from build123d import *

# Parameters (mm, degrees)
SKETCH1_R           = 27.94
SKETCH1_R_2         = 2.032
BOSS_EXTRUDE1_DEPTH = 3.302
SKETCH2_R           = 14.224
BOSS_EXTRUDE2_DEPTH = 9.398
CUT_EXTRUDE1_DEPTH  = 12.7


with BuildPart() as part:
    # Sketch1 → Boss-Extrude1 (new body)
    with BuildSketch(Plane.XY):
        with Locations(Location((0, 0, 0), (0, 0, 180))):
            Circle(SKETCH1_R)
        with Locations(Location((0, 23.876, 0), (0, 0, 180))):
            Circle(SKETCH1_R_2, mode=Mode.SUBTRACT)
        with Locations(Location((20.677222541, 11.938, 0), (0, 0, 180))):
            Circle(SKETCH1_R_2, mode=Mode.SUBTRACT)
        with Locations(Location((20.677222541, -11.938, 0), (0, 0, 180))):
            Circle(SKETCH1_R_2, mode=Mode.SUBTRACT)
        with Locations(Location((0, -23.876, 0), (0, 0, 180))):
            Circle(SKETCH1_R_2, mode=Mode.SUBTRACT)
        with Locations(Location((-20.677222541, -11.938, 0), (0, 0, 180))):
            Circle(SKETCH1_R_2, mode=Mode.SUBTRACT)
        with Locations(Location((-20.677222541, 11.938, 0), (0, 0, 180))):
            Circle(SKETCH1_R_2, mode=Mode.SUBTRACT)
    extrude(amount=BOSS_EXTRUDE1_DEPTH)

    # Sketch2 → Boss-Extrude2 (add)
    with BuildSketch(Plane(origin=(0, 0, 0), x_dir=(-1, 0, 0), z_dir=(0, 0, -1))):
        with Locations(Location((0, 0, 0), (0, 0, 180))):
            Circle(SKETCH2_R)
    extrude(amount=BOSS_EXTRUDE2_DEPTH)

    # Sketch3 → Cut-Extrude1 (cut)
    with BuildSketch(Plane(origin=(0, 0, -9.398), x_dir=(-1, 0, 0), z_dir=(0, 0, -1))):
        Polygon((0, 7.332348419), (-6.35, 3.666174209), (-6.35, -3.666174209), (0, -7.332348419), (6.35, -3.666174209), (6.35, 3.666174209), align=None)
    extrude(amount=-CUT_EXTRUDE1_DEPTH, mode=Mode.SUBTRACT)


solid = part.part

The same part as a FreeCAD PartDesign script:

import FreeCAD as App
import Part
import Sketcher
from FreeCAD import Vector
Q = App.Units.Quantity

doc = App.newDocument("Part")
body = doc.addObject("PartDesign::Body", "Body")

# Sketch on XY plane
sketch1 = body.newObject("Sketcher::SketchObject", "Sketch")
sketch1.AttachmentSupport = (doc.getObject("XY_Plane"), [""])
sketch1.MapMode = "FlatFace"
sketch1.addGeometry([
    Part.Circle(Vector(0, 0, 0), Vector(0, 0, 1), 27.9),  # 0
    Part.Circle(Vector(20.7, 11.9, 0), Vector(0, 0, 1), 2),  # 1
    Part.Circle(Vector(0, 23.9, 0), Vector(0, 0, 1), 2),  # 2
    Part.Circle(Vector(-20.7, 11.9, 0), Vector(0, 0, 1), 2),  # 3
    Part.Circle(Vector(20.7, -11.9, 0), Vector(0, 0, 1), 2),  # 4
    Part.Circle(Vector(0, -23.9, 0), Vector(0, 0, 1), 2),  # 5
    Part.Circle(Vector(-20.7, -11.9, 0), Vector(0, 0, 1), 2),  # 6
], False)
sketch1.addConstraint([
    Sketcher.Constraint("Coincident", 0, 3, -1, 1),
    Sketcher.Constraint("Equal", 1, 2),
    Sketcher.Constraint("Equal", 2, 3),
    Sketcher.Constraint("Equal", 3, 4),
    Sketcher.Constraint("Equal", 4, 5),
    Sketcher.Constraint("Equal", 5, 6),
    Sketcher.Constraint("Symmetric", 3, 3, 4, 3, -1, 1),
    Sketcher.Constraint("Symmetric", 2, 3, 5, 3, -1, 1),
    Sketcher.Constraint("Symmetric", 1, 3, 6, 3, -1, 1),
    Sketcher.Constraint("Symmetric", 1, 3, 3, 3, -2),
    Sketcher.Constraint("PointOnObject", 2, 3, -2),
    Sketcher.Constraint("Diameter", 0, Q("2.2 in")),
    Sketcher.Constraint("Diameter", 1, Q("0.16 in")),
    Sketcher.Constraint("DistanceY", -1, 1, 1, 3, Q("0.47 in")),
    Sketcher.Constraint("DistanceY", -1, 1, 2, 3, Q("0.94 in")),
    Sketcher.Constraint("DistanceX", -1, 1, 1, 3, Q("20.677223 mm")),
])
pad1 = body.newObject("PartDesign::Pad", "Pad")
pad1.Profile = sketch1
pad1.Length = Q("0.13 in")

# Sketch on XY plane
sketch2 = body.newObject("Sketcher::SketchObject", "Sketch001")
sketch2.AttachmentSupport = (doc.getObject("XY_Plane"), [""])
sketch2.MapMode = "FlatFace"
sketch2.addGeometry(Part.Circle(Vector(0, 0, 0), Vector(0, 0, 1), 14), False)
sketch2.addConstraint([
    Sketcher.Constraint("Coincident", 0, 3, -1, 1),
    Sketcher.Constraint("Diameter", 0, Q("1.12 in")),
])
pad2 = body.newObject("PartDesign::Pad", "Pad001")
pad2.Profile = sketch2
pad2.Length = Q("0.37 in")
pad2.Reversed = True

# Sketch on XY plane
sketch3 = body.newObject("Sketcher::SketchObject", "Sketch002")
sketch3.AttachmentSupport = (doc.getObject("XY_Plane"), [""])
sketch3.MapMode = "FlatFace"
sketch3.AttachmentOffset = App.Placement(Vector(0, 0, -0.37 * 25.4), App.Rotation())
sketch3.addGeometry([
    Part.LineSegment(Vector(0, 7, 0), Vector(6, 4, 0)),  # 0
    Part.LineSegment(Vector(6, 4, 0), Vector(6, -4, 0)),  # 1
    Part.LineSegment(Vector(6, -4, 0), Vector(0, -7, 0)),  # 2
    Part.LineSegment(Vector(0, -7, 0), Vector(-6, -4, 0)),  # 3
    Part.LineSegment(Vector(-6, -4, 0), Vector(-6, 4, 0)),  # 4
    Part.LineSegment(Vector(-6, 4, 0), Vector(0, 7, 0)),  # 5
], False)
sketch3.addConstraint([
    Sketcher.Constraint("Coincident", 0, 2, 1, 1),
    Sketcher.Constraint("Coincident", 1, 2, 2, 1),
    Sketcher.Constraint("Coincident", 2, 2, 3, 1),
    Sketcher.Constraint("Coincident", 3, 2, 4, 1),
    Sketcher.Constraint("Coincident", 4, 2, 5, 1),
    Sketcher.Constraint("Coincident", 5, 2, 0, 1),
    Sketcher.Constraint("Vertical", 1),
    Sketcher.Constraint("Vertical", 4),
    Sketcher.Constraint("Symmetric", 0, 2, 3, 2, -1, 1),
    Sketcher.Constraint("Symmetric", 2, 2, 5, 2, -1, 1),
    Sketcher.Constraint("PointOnObject", 2, 2, -2),
    Sketcher.Constraint("Parallel", 2, 5),
    Sketcher.Constraint("Horizontal", 1, 2, 3, 2),
    Sketcher.Constraint("Angle", 0, Q("-30 deg")),
    Sketcher.Constraint("DistanceX", 3, 2, 1, 2, Q("0.5 in")),
    Sketcher.Constraint("DistanceY", 1, 2, 1, 1, Q("7.332348 mm")),
])
pocket1 = body.newObject("PartDesign::Pocket", "Pocket")
pocket1.Profile = sketch3
pocket1.Length = Q("0.5 in")
pocket1.Reversed = True

doc.recompute()
